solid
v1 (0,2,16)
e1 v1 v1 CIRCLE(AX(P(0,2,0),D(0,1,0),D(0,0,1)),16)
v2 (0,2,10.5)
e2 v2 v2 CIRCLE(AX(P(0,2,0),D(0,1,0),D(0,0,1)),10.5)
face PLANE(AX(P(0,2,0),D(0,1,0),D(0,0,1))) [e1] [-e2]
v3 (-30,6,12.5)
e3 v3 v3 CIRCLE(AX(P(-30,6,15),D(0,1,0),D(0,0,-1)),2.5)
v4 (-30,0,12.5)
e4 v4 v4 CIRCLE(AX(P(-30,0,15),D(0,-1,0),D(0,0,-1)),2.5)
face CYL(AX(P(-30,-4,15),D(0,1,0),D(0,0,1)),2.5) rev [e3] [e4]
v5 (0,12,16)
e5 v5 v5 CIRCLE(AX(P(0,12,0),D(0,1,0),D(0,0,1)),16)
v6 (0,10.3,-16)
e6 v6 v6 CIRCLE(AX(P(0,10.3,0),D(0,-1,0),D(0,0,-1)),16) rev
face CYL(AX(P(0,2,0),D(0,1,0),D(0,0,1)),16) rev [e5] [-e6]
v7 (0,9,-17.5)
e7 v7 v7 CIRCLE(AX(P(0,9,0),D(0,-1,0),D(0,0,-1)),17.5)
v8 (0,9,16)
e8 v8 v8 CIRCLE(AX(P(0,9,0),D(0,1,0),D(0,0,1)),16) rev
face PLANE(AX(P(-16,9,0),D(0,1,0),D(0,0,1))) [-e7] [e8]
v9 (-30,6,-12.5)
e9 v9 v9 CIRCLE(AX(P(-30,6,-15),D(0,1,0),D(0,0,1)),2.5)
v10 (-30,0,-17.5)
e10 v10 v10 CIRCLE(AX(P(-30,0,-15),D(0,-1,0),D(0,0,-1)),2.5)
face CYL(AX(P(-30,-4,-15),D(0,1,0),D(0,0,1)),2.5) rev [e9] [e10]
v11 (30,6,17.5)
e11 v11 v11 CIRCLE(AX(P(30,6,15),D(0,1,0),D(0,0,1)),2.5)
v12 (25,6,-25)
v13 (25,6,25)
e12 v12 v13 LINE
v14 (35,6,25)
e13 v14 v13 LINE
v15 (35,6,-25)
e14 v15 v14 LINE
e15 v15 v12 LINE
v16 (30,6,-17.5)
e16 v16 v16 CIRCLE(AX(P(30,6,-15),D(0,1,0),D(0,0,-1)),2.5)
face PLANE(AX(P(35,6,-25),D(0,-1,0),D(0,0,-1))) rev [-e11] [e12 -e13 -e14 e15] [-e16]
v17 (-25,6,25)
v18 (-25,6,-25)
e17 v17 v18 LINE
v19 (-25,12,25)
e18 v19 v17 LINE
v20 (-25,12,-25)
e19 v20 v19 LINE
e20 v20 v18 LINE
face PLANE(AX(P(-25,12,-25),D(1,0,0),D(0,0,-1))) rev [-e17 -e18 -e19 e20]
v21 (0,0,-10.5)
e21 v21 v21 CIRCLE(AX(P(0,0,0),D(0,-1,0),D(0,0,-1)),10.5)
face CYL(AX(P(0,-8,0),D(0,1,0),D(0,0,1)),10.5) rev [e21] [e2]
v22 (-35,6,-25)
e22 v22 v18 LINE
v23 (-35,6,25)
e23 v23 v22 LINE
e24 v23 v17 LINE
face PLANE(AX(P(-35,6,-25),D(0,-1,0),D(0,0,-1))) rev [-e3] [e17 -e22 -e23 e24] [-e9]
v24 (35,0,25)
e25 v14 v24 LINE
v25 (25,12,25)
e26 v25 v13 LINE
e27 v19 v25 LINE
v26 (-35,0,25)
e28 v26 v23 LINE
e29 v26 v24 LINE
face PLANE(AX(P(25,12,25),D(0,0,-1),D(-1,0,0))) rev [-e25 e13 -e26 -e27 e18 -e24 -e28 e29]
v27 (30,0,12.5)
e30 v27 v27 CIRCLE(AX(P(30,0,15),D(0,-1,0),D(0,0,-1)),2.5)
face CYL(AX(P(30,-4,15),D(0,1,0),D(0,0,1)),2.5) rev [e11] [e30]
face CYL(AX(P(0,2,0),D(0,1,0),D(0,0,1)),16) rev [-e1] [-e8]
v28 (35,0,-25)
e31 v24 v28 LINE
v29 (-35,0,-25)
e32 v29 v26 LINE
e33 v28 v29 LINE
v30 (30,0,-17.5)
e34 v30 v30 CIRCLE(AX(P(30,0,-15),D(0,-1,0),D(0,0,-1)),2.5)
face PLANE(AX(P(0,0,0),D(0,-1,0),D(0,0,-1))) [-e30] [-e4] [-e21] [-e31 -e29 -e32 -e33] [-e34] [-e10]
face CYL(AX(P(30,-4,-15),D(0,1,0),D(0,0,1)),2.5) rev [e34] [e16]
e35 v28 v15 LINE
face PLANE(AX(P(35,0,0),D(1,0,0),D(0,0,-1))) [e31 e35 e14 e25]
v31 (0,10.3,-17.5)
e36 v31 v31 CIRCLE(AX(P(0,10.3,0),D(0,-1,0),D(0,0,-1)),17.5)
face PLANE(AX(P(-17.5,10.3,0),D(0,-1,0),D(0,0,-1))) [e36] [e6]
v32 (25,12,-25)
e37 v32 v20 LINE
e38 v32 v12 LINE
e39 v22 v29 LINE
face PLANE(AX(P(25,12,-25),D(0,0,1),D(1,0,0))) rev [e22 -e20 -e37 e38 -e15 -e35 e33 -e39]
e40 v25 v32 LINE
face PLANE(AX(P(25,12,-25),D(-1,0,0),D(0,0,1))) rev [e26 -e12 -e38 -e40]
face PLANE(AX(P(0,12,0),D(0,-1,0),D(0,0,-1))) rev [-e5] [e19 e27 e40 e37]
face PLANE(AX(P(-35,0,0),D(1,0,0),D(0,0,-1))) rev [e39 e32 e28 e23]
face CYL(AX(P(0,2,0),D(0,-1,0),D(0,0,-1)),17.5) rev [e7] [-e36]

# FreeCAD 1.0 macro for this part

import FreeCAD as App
import Part
import Sketcher

V = App.Vector
Q = App.Units.Quantity

doc = App.newDocument("Part")
params = doc.addObject("Spreadsheet::Sheet", "Params")
for row, (alias, value) in enumerate([
    ("sketch1_width", "50 mm"),
    ("pad1_length", "12 mm"),
    ("sketch2_diameter", "32 mm"),
    ("pocket1_length", "10 mm"),
    ("sketch3_height", "1.3 mm"),
    ("groove_angle", "360 deg"),
    ("sketch4_diameter", "21 mm"),
    ("pocket2_length", "10 mm"),
    ("sketch5_width", "6 mm"),
    ("sketch5_height", "50 mm"),
    ("pad2_length", "10 mm"),
    ("sketch6_width", "6 mm"),
    ("sketch6_height", "50 mm"),
    ("pad3_length", "10 mm"),
    ("sketch7_diameter", "5 mm"),
    ("pocket3_length", "10 mm"),
], start=1):
    params.set(f"A{row}", alias)
    params.set(f"B{row}", "=" + value)
    params.setAlias(f"B{row}", alias)

body = doc.addObject("PartDesign::Body", "Body")

sketch1 = body.newObject("Sketcher::SketchObject", "Sketch")
sketch1.AttachmentSupport = (doc.getObject("XZ_Plane"), [""])
sketch1.MapMode = "FlatFace"
sketch1.addGeometry(Part.LineSegment(V(-25, -25, 0), V(-25, 25, 0)), False)
sketch1.addGeometry(Part.LineSegment(V(-25, 25, 0), V(25, 25, 0)), False)
sketch1.addGeometry(Part.LineSegment(V(25, 25, 0), V(25, -25, 0)), False)
sketch1.addGeometry(Part.LineSegment(V(25, -25, 0), V(-25, -25, 0)), False)
sketch1.addConstraint(Sketcher.Constraint("Coincident", 0, 2, 1, 1))
sketch1.addConstraint(Sketcher.Constraint("Coincident", 1, 2, 2, 1))
sketch1.addConstraint(Sketcher.Constraint("Coincident", 2, 2, 3, 1))
sketch1.addConstraint(Sketcher.Constraint("Coincident", 3, 2, 0, 1))
sketch1.addConstraint(Sketcher.Constraint("Vertical", 0))
sketch1.addConstraint(Sketcher.Constraint("Horizontal", 1))
sketch1.addConstraint(Sketcher.Constraint("Vertical", 2))
sketch1.addConstraint(Sketcher.Constraint("Horizontal", 3))
sketch1.addConstraint(Sketcher.Constraint("Symmetric", 0, 2, 2, 2, -1, 1))
sketch1.addConstraint(Sketcher.Constraint("Equal", 3, 0))
sketch1.addConstraint(Sketcher.Constraint("DistanceX", 1, 1, 1, 2, Q("50 mm")))
sketch1.setExpression("Constraints[10]", "Params.sketch1_width")
pad1 = body.newObject("PartDesign::Pad", "Pad")
pad1.Profile = sketch1
pad1.setExpression("Length", "Params.pad1_length")
pad1.Reversed = True

sketch2 = body.newObject("Sketcher::SketchObject", "Sketch001")
sketch2.AttachmentSupport = (doc.getObject("XZ_Plane"), [""])
sketch2.MapMode = "FlatFace"
sketch2.AttachmentOffset = App.Placement(V(0, 0, -12), App.Rotation())
sketch2.addGeometry(Part.Circle(V(0, 0, 0), V(0, 0, 1), 16), False)
sketch2.addConstraint(Sketcher.Constraint("Coincident", 0, 3, -1, 1))
sketch2.addConstraint(Sketcher.Constraint("Diameter", 0, Q("32 mm")))
sketch2.setExpression("Constraints[1]", "Params.sketch2_diameter")
pocket1 = body.newObject("PartDesign::Pocket", "Pocket")
pocket1.Profile = sketch2
pocket1.setExpression("Length", "Params.pocket1_length")
pocket1.Reversed = True

sketch3 = body.newObject("Sketcher::SketchObject", "Sketch002")
sketch3.AttachmentSupport = (doc.getObject("XY_Plane"), [""])
sketch3.MapMode = "FlatFace"
sketch3.addGeometry(Part.LineSegment(V(-17.5, 9, 0), V(-15.7, 9, 0)), False)
sketch3.addGeometry(Part.LineSegment(V(-15.7, 9, 0), V(-15.7, 10.3, 0)), False)
sketch3.addGeometry(Part.LineSegment(V(-15.7, 10.3, 0), V(-17.5, 10.3, 0)), False)
sketch3.addGeometry(Part.LineSegment(V(-17.5, 10.3, 0), V(-17.5, 9, 0)), False)
sketch3.addConstraint(Sketcher.Constraint("Coincident", 0, 2, 1, 1))
sketch3.addConstraint(Sketcher.Constraint("Coincident", 1, 2, 2, 1))
sketch3.addConstraint(Sketcher.Constraint("Coincident", 2, 2, 3, 1))
sketch3.addConstraint(Sketcher.Constraint("Coincident", 3, 2, 0, 1))
sketch3.addConstraint(Sketcher.Constraint("Horizontal", 0))
sketch3.addConstraint(Sketcher.Constraint("Vertical", 1))
sketch3.addConstraint(Sketcher.Constraint("Horizontal", 2))
sketch3.addConstraint(Sketcher.Constraint("Vertical", 3))
sketch3.addConstraint(Sketcher.Constraint("DistanceY", 1, 1, 1, 2, Q("1.3 mm")))
sketch3.addConstraint(Sketcher.Constraint("DistanceY", -1, 1, 0, 2, Q("9 mm")))
sketch3.addConstraint(Sketcher.Constraint("DistanceX", 2, 2, -1, 1, Q("17.5 mm")))
sketch3.addConstraint(Sketcher.Constraint("DistanceX", 0, 1, 0, 2, Q("1.752827 mm")))
sketch3.setExpression("Constraints[8]", "Params.sketch3_height")
groove = body.newObject("PartDesign::Groove", "Groove")
groove.Profile = sketch3
groove.ReferenceAxis = (sketch3, ["V_Axis"])
groove.setExpression("Angle", "Params.groove_angle")

sketch4 = body.newObject("Sketcher::SketchObject", "Sketch003")
sketch4.AttachmentSupport = (doc.getObject("XZ_Plane"), [""])
sketch4.MapMode = "FlatFace"
sketch4.AttachmentOffset = App.Placement(V(0, 0, -2), App.Rotation())
sketch4.addGeometry(Part.Circle(V(0, 0, 0), V(0, 0, 1), 10), False)
sketch4.addConstraint(Sketcher.Constraint("Coincident", 0, 3, -1, 1))
sketch4.addConstraint(Sketcher.Constraint("Diameter", 0, Q("21 mm")))
sketch4.setExpression("Constraints[1]", "Params.sketch4_diameter")
pocket2 = body.newObject("PartDesign::Pocket", "Pocket001")
pocket2.Profile = sketch4
pocket2.setExpression("Length", "Params.pocket2_length")
pocket2.Reversed = True

sketch5 = body.newObject("Sketcher::SketchObject", "Sketch004")
sketch5.AttachmentSupport = (doc.getObject("YZ_Plane"), [""])
sketch5.MapMode = "FlatFace"
sketch5.AttachmentOffset = App.Placement(V(0, 0, -25), App.Rotation())
sketch5.addGeometry(Part.LineSegment(V(6, -25, 0), V(0, -25, 0)), False)
sketch5.addGeometry(Part.LineSegment(V(0, -25, 0), V(0, 25, 0)), False)
sketch5.addGeometry(Part.LineSegment(V(0, 25, 0), V(6, 25, 0)), False)
sketch5.addGeometry(Part.LineSegment(V(6, 25, 0), V(6, -25, 0)), False)
sketch5.addConstraint(Sketcher.Constraint("Coincident", 0, 2, 1, 1))
sketch5.addConstraint(Sketcher.Constraint("Coincident", 1, 2, 2, 1))
sketch5.addConstraint(Sketcher.Constraint("Coincident", 2, 2, 3, 1))
sketch5.addConstraint(Sketcher.Constraint("Coincident", 3, 2, 0, 1))
sketch5.addConstraint(Sketcher.Constraint("Horizontal", 0))
sketch5.addConstraint(Sketcher.Constraint("Vertical", 1))
sketch5.addConstraint(Sketcher.Constraint("Horizontal", 2))
sketch5.addConstraint(Sketcher.Constraint("Vertical", 3))
sketch5.addConstraint(Sketcher.Constraint("Symmetric", 0, 2, 1, 2, -1, 1))
sketch5.addConstraint(Sketcher.Constraint("DistanceX", 0, 2, 0, 1, Q("6 mm")))
sketch5.addConstraint(Sketcher.Constraint("DistanceY", 1, 1, 1, 2, Q("50 mm")))
sketch5.setExpression("Constraints[9]", "Params.sketch5_width")
sketch5.setExpression("Constraints[10]", "Params.sketch5_height")
pad2 = body.newObject("PartDesign::Pad", "Pad001")
pad2.Profile = sketch5
pad2.setExpression("Length", "Params.pad2_length")
pad2.Reversed = True

sketch6 = body.newObject("Sketcher::SketchObject", "Sketch005")
sketch6.AttachmentSupport = (doc.getObject("YZ_Plane"), [""])
sketch6.MapMode = "FlatFace"
sketch6.AttachmentOffset = App.Placement(V(0, 0, 25), App.Rotation())
sketch6.addGeometry(Part.LineSegment(V(6, 25, 0), V(0, 25, 0)), False)
sketch6.addGeometry(Part.LineSegment(V(0, 25, 0), V(0, -25, 0)), False)
sketch6.addGeometry(Part.LineSegment(V(0, -25, 0), V(6, -25, 0)), False)
sketch6.addGeometry(Part.LineSegment(V(6, -25, 0), V(6, 25, 0)), False)
sketch6.addConstraint(Sketcher.Constraint("Coincident", 0, 2, 1, 1))
sketch6.addConstraint(Sketcher.Constraint("Coincident", 1, 2, 2, 1))
sketch6.addConstraint(Sketcher.Constraint("Coincident", 2, 2, 3, 1))
sketch6.addConstraint(Sketcher.Constraint("Coincident", 3, 2, 0, 1))
sketch6.addConstraint(Sketcher.Constraint("Horizontal", 0))
sketch6.addConstraint(Sketcher.Constraint("Vertical", 1))
sketch6.addConstraint(Sketcher.Constraint("Horizontal", 2))
sketch6.addConstraint(Sketcher.Constraint("Vertical", 3))
sketch6.addConstraint(Sketcher.Constraint("Symmetric", 0, 2, 1, 2, -1, 1))
sketch6.addConstraint(Sketcher.Constraint("DistanceX", 0, 2, 0, 1, Q("6 mm")))
sketch6.addConstraint(Sketcher.Constraint("DistanceY", 1, 2, 1, 1, Q("50 mm")))
sketch6.setExpression("Constraints[9]", "Params.sketch6_width")
sketch6.setExpression("Constraints[10]", "Params.sketch6_height")
pad3 = body.newObject("PartDesign::Pad", "Pad002")
pad3.Profile = sketch6
pad3.setExpression("Length", "Params.pad3_length")

sketch7 = body.newObject("Sketcher::SketchObject", "Sketch006")
sketch7.AttachmentSupport = (doc.getObject("XZ_Plane"), [""])
sketch7.MapMode = "FlatFace"
sketch7.AttachmentOffset = App.Placement(V(0, 0, -6), App.Rotation())
sketch7.addGeometry(Part.Circle(V(-30, -15, 0), V(0, 0, 1), 2.5), False)
sketch7.addGeometry(Part.Circle(V(-30, 15, 0), V(0, 0, 1), 2.5), False)
sketch7.addGeometry(Part.Circle(V(30, 15, 0), V(0, 0, 1), 2.5), False)
sketch7.addGeometry(Part.Circle(V(30, -15, 0), V(0, 0, 1), 2.5), False)
sketch7.addConstraint(Sketcher.Constraint("Equal", 0, 1))
sketch7.addConstraint(Sketcher.Constraint("Equal", 1, 2))
sketch7.addConstraint(Sketcher.Constraint("Equal", 2, 3))
sketch7.addConstraint(Sketcher.Constraint("Symmetric", 0, 3, 2, 3, -1, 1))
sketch7.addConstraint(Sketcher.Constraint("Symmetric", 1, 3, 3, 3, -1, 1))
sketch7.addConstraint(Sketcher.Constraint("Symmetric", 1, 3, 2, 3, -2))
sketch7.addConstraint(Sketcher.Constraint("Diameter", 0, Q("5 mm")))
sketch7.addConstraint(Sketcher.Constraint("DistanceX", 0, 3, -1, 1, Q("30 mm")))
sketch7.addConstraint(Sketcher.Constraint("DistanceY", 0, 3, -1, 1, Q("15 mm")))
sketch7.setExpression("Constraints[6]", "Params.sketch7_diameter")
pocket3 = body.newObject("PartDesign::Pocket", "Pocket002")
pocket3.Profile = sketch7
pocket3.setExpression("Length", "Params.pocket3_length")
pocket3.Reversed = True

doc.recompute()
